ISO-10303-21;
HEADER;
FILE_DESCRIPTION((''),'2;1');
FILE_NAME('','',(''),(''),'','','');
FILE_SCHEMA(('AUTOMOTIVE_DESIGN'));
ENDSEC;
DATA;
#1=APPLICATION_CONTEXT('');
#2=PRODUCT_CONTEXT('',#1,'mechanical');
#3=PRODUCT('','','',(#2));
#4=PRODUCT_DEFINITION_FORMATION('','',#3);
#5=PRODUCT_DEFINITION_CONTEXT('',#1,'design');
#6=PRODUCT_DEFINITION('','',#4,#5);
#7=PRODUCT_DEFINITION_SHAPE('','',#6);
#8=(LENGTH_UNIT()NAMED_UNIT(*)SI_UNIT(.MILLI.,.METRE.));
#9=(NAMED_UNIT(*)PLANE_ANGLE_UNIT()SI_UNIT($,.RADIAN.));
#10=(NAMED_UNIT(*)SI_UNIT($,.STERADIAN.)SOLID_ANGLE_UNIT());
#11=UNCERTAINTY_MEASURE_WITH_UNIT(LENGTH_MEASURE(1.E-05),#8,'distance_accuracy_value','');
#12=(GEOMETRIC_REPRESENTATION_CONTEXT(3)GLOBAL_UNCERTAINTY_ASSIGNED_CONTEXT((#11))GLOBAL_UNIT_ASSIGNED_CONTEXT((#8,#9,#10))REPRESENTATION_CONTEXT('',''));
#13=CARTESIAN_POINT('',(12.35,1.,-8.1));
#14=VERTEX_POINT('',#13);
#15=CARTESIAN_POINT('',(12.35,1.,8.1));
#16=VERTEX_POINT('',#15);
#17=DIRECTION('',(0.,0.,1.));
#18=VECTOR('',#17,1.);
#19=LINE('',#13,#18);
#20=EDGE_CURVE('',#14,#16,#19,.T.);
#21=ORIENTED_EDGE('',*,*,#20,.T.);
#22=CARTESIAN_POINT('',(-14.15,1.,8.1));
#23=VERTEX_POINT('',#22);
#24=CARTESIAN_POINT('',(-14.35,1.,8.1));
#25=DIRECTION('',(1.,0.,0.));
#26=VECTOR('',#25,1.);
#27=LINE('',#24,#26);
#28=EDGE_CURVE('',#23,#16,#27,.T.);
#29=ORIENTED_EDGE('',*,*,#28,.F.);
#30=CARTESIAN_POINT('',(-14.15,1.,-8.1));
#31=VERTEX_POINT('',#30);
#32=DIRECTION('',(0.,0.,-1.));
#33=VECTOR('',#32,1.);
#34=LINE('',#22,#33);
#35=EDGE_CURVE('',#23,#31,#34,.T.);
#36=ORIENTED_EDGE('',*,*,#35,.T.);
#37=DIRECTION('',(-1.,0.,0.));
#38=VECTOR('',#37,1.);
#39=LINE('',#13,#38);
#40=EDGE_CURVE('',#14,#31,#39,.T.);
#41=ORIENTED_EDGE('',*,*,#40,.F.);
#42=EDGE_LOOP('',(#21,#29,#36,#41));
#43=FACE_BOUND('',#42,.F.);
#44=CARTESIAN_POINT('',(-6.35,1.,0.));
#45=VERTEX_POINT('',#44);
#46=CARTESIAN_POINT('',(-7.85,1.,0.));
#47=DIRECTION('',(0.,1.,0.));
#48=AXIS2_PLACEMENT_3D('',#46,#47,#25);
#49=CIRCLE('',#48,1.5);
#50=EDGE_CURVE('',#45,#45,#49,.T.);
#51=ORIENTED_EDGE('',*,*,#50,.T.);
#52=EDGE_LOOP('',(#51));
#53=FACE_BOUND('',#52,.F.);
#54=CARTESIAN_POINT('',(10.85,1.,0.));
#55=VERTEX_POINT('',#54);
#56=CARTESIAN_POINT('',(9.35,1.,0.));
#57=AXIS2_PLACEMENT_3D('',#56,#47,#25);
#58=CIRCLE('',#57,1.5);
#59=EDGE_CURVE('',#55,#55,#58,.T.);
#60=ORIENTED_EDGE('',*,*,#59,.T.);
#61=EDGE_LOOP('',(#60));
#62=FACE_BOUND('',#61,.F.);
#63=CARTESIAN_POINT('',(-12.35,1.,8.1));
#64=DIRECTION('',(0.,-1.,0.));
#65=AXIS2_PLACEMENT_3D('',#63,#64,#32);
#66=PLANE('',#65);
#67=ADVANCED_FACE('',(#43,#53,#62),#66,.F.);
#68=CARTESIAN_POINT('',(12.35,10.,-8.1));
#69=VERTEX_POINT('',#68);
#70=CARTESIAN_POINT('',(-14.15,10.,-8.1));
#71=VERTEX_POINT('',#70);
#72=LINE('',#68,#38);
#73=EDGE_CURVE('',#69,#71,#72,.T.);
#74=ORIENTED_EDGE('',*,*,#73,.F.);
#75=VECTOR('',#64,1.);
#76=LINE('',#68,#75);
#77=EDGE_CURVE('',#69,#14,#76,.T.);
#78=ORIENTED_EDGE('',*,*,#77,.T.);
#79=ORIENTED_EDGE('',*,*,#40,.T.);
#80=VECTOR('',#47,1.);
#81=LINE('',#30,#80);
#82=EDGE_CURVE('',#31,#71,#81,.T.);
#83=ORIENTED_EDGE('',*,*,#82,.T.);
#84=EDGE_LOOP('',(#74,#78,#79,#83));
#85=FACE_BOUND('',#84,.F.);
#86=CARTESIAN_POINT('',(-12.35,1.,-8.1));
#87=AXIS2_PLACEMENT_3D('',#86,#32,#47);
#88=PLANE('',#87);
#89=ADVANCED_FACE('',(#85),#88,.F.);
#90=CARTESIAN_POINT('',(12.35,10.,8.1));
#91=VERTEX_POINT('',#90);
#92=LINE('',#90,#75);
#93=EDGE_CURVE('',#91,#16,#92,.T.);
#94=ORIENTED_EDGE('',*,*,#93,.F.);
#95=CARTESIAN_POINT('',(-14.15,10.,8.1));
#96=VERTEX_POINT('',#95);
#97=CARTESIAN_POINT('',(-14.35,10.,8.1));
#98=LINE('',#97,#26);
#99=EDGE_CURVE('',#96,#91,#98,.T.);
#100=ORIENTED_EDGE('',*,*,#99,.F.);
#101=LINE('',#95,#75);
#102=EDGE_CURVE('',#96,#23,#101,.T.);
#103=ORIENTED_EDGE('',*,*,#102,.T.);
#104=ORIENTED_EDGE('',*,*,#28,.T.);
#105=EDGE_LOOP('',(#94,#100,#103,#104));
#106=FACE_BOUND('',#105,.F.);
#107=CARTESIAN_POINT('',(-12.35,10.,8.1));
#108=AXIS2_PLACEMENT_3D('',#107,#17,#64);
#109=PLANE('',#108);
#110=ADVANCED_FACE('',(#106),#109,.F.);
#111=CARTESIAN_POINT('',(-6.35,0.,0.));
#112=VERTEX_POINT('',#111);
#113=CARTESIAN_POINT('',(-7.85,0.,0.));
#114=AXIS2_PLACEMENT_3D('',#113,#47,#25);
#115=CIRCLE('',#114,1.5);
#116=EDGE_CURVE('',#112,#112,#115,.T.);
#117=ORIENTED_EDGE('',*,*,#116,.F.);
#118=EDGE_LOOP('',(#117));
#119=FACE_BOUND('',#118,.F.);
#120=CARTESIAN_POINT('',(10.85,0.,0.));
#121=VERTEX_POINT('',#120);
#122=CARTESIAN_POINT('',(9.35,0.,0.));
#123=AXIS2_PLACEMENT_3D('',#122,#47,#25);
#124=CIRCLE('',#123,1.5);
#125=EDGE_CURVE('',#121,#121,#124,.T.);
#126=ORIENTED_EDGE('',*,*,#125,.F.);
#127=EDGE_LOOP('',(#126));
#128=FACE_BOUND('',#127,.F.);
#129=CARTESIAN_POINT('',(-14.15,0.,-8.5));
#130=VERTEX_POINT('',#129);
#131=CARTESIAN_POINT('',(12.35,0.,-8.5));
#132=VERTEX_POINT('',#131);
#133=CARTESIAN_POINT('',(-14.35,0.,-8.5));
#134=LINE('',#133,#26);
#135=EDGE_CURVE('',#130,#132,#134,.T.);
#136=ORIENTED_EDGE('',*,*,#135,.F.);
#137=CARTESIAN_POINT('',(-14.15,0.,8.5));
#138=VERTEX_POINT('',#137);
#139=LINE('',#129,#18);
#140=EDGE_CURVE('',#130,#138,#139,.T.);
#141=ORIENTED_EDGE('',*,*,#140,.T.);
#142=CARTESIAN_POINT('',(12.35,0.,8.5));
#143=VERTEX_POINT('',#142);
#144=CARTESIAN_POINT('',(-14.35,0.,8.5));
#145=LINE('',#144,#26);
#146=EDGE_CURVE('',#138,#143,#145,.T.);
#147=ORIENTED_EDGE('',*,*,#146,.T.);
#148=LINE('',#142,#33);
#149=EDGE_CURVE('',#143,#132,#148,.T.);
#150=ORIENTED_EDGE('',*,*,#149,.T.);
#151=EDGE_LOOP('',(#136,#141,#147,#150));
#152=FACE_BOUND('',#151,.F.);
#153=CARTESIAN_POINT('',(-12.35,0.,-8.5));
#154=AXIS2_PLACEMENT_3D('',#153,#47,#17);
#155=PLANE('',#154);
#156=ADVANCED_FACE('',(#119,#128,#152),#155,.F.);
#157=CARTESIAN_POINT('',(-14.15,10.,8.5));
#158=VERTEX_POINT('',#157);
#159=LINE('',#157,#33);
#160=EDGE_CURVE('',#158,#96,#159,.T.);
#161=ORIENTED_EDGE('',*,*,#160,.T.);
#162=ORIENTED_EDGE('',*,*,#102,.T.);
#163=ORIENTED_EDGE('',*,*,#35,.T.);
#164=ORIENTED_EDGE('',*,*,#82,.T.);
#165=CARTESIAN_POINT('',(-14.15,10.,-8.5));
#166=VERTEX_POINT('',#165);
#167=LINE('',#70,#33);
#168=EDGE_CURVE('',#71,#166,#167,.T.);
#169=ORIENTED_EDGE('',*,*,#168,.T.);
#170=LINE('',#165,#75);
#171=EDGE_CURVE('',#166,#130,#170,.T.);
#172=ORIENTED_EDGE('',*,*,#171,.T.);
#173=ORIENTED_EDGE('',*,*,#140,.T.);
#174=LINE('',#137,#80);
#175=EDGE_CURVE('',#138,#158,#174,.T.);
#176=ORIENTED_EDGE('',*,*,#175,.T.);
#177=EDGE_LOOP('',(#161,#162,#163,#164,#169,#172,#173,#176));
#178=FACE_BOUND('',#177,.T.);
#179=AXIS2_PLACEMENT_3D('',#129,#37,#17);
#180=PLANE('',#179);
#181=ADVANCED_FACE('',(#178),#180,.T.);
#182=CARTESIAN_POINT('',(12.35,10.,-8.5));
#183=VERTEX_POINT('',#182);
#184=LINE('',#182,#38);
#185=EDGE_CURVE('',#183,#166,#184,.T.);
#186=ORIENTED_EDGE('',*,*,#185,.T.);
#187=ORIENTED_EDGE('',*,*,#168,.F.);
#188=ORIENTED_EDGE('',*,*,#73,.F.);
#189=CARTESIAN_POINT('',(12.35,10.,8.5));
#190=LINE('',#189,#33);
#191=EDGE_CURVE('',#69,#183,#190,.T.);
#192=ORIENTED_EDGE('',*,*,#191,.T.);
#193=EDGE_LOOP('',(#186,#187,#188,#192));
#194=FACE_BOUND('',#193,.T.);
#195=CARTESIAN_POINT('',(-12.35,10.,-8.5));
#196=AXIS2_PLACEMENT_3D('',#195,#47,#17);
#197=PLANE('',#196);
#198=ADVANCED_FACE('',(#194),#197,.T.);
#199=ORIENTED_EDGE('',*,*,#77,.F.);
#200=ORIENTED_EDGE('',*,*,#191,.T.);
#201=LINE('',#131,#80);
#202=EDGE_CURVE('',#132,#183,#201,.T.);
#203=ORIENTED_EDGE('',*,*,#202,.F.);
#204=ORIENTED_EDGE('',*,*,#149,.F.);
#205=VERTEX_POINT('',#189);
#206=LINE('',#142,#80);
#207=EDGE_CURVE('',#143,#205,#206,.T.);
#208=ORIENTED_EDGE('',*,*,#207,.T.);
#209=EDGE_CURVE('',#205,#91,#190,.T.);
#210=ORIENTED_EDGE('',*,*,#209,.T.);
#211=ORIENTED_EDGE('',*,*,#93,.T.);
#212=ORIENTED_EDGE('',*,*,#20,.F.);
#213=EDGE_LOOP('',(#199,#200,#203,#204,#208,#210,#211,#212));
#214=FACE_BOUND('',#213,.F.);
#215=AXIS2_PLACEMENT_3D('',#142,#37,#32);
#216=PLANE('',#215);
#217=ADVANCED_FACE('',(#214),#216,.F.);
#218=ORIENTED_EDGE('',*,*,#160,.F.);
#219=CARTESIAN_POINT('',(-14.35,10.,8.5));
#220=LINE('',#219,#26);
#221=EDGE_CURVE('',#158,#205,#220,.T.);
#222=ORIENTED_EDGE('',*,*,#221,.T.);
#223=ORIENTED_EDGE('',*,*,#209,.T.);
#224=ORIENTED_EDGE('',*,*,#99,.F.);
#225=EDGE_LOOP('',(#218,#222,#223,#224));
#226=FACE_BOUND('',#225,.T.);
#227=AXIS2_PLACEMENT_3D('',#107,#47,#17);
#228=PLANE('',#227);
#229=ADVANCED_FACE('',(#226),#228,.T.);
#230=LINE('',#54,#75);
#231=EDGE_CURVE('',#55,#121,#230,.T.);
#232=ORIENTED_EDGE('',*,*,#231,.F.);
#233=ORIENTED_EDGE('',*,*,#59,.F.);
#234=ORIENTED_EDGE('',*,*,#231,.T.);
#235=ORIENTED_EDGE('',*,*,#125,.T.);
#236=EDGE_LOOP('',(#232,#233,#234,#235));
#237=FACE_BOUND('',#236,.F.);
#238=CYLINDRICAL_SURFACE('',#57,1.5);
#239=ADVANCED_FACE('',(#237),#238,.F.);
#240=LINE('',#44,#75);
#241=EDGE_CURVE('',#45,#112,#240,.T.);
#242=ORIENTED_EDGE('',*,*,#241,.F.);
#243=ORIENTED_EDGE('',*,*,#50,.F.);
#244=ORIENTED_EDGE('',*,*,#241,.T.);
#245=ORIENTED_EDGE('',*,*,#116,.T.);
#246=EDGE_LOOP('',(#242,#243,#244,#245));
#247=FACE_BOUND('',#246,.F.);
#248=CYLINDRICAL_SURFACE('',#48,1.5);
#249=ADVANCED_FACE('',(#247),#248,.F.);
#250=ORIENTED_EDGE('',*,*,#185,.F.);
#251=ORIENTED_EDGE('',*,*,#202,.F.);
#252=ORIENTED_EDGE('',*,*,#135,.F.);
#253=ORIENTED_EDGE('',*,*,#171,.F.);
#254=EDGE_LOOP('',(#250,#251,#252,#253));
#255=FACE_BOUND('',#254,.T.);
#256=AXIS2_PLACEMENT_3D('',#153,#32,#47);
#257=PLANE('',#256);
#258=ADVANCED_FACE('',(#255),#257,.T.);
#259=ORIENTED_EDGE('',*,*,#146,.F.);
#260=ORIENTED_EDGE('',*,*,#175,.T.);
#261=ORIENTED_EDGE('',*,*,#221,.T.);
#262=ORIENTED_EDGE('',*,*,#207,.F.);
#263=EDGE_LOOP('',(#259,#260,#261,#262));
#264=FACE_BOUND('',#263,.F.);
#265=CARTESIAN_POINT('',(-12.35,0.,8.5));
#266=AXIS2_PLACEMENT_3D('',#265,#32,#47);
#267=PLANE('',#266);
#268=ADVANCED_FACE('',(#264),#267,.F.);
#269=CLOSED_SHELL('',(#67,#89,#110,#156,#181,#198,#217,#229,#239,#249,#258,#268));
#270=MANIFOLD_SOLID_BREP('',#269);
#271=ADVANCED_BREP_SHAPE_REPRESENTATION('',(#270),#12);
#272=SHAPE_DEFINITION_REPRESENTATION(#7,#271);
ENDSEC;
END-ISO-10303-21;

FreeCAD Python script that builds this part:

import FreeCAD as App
import Part
import Sketcher

V = App.Vector

doc = App.newDocument("Part")
body = doc.addObject("PartDesign::Body", "Body")

# Sketch on XZ plane
sketch1 = body.newObject("Sketcher::SketchObject", "Sketch")
sketch1.AttachmentSupport = (doc.getObject("XZ_Plane"), [""])
sketch1.MapMode = "FlatFace"
sketch1.addGeometry([
    Part.LineSegment(V(-12.35, -8.5, 0), V(-12.35, 8.5, 0)),
    Part.LineSegment(V(-12.35, 8.5, 0), V(12.35, 8.5, 0)),
    Part.LineSegment(V(12.35, 8.5, 0), V(12.35, -8.5, 0)),
    Part.LineSegment(V(12.35, -8.5, 0), V(-12.35, -8.5, 0)),
], False)
sketch1.addConstraint([
    Sketcher.Constraint("Coincident", 0, 2, 1, 1),
    Sketcher.Constraint("Coincident", 1, 2, 2, 1),
    Sketcher.Constraint("Coincident", 2, 2, 3, 1),
    Sketcher.Constraint("Coincident", 3, 2, 0, 1),
    Sketcher.Constraint("Vertical", 0),
    Sketcher.Constraint("Horizontal", 1),
    Sketcher.Constraint("Vertical", 2),
    Sketcher.Constraint("Horizontal", 3),
    Sketcher.Constraint("Symmetric", 0, 2, 2, 2, -1, 1),
    Sketcher.Constraint("DistanceY", 0, 1, 0, 2, 17.0),
    Sketcher.Constraint("DistanceX", 1, 1, 1, 2, 24.7),
])
pad1 = body.newObject("PartDesign::Pad", "Pad")
pad1.Profile = sketch1
pad1.Length = 10
pad1.Reversed = True

# Sketch on XZ plane
sketch2 = body.newObject("Sketcher::SketchObject", "Sketch001")
sketch2.AttachmentSupport = (doc.getObject("XZ_Plane"), [""])
sketch2.MapMode = "FlatFace"
sketch2.AttachmentOffset = App.Placement(V(0, 0, -10), App.Rotation())
sketch2.addGeometry([
    Part.LineSegment(V(12.35, -8.1, 0), V(-12.35, -8.1, 0)),
    Part.LineSegment(V(-12.35, -8.1, 0), V(-12.35, 8.1, 0)),
    Part.LineSegment(V(-12.35, 8.1, 0), V(12.35, 8.1, 0)),
    Part.LineSegment(V(12.35, 8.1, 0), V(12.35, -8.1, 0)),
], False)
sketch2.addConstraint([
    Sketcher.Constraint("Coincident", 0, 2, 1, 1),
    Sketcher.Constraint("Coincident", 1, 2, 2, 1),
    Sketcher.Constraint("Coincident", 2, 2, 3, 1),
    Sketcher.Constraint("Coincident", 3, 2, 0, 1),
    Sketcher.Constraint("Horizontal", 0),
    Sketcher.Constraint("Vertical", 1),
    Sketcher.Constraint("Horizontal", 2),
    Sketcher.Constraint("Vertical", 3),
    Sketcher.Constraint("Symmetric", 0, 2, 2, 2, -1, 1),
    Sketcher.Constraint("DistanceX", 0, 2, 0, 1, 24.7),
    Sketcher.Constraint("DistanceY", 1, 1, 1, 2, 16.2),
])
pocket1 = body.newObject("PartDesign::Pocket", "Pocket")
pocket1.Profile = sketch2
pocket1.Length = 9
pocket1.Reversed = True

# Sketch on XZ plane
sketch3 = body.newObject("Sketcher::SketchObject", "Sketch002")
sketch3.AttachmentSupport = (doc.getObject("XZ_Plane"), [""])
sketch3.MapMode = "FlatFace"
sketch3.addGeometry([
    Part.Circle(V(-9.35, 0, 0), V(0, 0, 1), 1.5),
    Part.Circle(V(9.35, 0, 0), V(0, 0, 1), 1.5),
], False)
sketch3.addConstraint([
    Sketcher.Constraint("Equal", 0, 1),
    Sketcher.Constraint("Symmetric", 0, 3, 1, 3, -1, 1),
    Sketcher.Constraint("PointOnObject", 0, 3, -1),
    Sketcher.Constraint("Diameter", 0, 3.0),
    Sketcher.Constraint("DistanceX", 0, 3, 1, 3, 18.7),
])
pocket2 = body.newObject("PartDesign::Pocket", "Pocket001")
pocket2.Profile = sketch3
pocket2.Length = 1

# Sketch on YZ plane
sketch4 = body.newObject("Sketcher::SketchObject", "Sketch003")
sketch4.AttachmentSupport = (doc.getObject("YZ_Plane"), [""])
sketch4.MapMode = "FlatFace"
sketch4.AttachmentOffset = App.Placement(V(0, 0, -12.35), App.Rotation())
sketch4.addGeometry([
    Part.LineSegment(V(1, 8.1, 0), V(1, -8.1, 0)),  # 0
    Part.LineSegment(V(1, -8.1, 0), V(10, -8.1, 0)),  # 1
    Part.LineSegment(V(10, -8.1, 0), V(10, -8.5, 0)),  # 2
    Part.LineSegment(V(10, -8.5, 0), V(0, -8.5, 0)),  # 3
    Part.LineSegment(V(0, -8.5, 0), V(0, 8.5, 0)),  # 4
    Part.LineSegment(V(0, 8.5, 0), V(10, 8.5, 0)),  # 5
    Part.LineSegment(V(10, 8.5, 0), V(10, 8.1, 0)),  # 6
    Part.LineSegment(V(10, 8.1, 0), V(1, 8.1, 0)),  # 7
], False)
sketch4.addConstraint([
    Sketcher.Constraint("Coincident", 0, 2, 1, 1),
    Sketcher.Constraint("Coincident", 1, 2, 2, 1),
    Sketcher.Constraint("Coincident", 2, 2, 3, 1),
    Sketcher.Constraint("Coincident", 3, 2, 4, 1),
    Sketcher.Constraint("Coincident", 4, 2, 5, 1),
    Sketcher.Constraint("Coincident", 5, 2, 6, 1),
    Sketcher.Constraint("Coincident", 6, 2, 7, 1),
    Sketcher.Constraint("Coincident", 7, 2, 0, 1),
    Sketcher.Constraint("Vertical", 0),
    Sketcher.Constraint("Horizontal", 1),
    Sketcher.Constraint("Vertical", 2),
    Sketcher.Constraint("Horizontal", 3),
    Sketcher.Constraint("Vertical", 4),
    Sketcher.Constraint("Horizontal", 5),
    Sketcher.Constraint("Vertical", 6),
    Sketcher.Constraint("Horizontal", 7),
    Sketcher.Constraint("Symmetric", 3, 2, 4, 2, -1, 1),
    Sketcher.Constraint("Symmetric", 1, 2, 6, 2, -1),
    Sketcher.Constraint("DistanceX", 1, 1, 1, 2, 9.0),
    Sketcher.Constraint("DistanceX", 3, 2, 3, 1, 10.0),
    Sketcher.Constraint("DistanceY", 4, 1, 4, 2, 17.0),
    Sketcher.Constraint("DistanceY", 0, 2, 0, 1, 16.2),
])
pad2 = body.newObject("PartDesign::Pad", "Pad001")
pad2.Profile = sketch4
pad2.Length = 2
pad2.Reversed = True

# Sketch on YZ plane
sketch5 = body.newObject("Sketcher::SketchObject", "Sketch004")
sketch5.AttachmentSupport = (doc.getObject("YZ_Plane"), [""])
sketch5.MapMode = "FlatFace"
sketch5.AttachmentOffset = App.Placement(V(0, 0, -14.35), App.Rotation())
sketch5.addGeometry([
    Part.LineSegment(V(1, 8.1, 0), V(1, -8.1, 0)),  # 0
    Part.LineSegment(V(1, -8.1, 0), V(10, -8.1, 0)),  # 1
    Part.LineSegment(V(10, -8.1, 0), V(10, -8.5, 0)),  # 2
    Part.LineSegment(V(10, -8.5, 0), V(0, -8.5, 0)),  # 3
    Part.LineSegment(V(0, -8.5, 0), V(0, 8.5, 0)),  # 4
    Part.LineSegment(V(0, 8.5, 0), V(10, 8.5, 0)),  # 5
    Part.LineSegment(V(10, 8.5, 0), V(10, 8.1, 0)),  # 6
    Part.LineSegment(V(10, 8.1, 0), V(1, 8.1, 0)),  # 7
], False)
sketch5.addConstraint([
    Sketcher.Constraint("Coincident", 0, 2, 1, 1),
    Sketcher.Constraint("Coincident", 1, 2, 2, 1),
    Sketcher.Constraint("Coincident", 2, 2, 3, 1),
    Sketcher.Constraint("Coincident", 3, 2, 4, 1),
    Sketcher.Constraint("Coincident", 4, 2, 5, 1),
    Sketcher.Constraint("Coincident", 5, 2, 6, 1),
    Sketcher.Constraint("Coincident", 6, 2, 7, 1),
    Sketcher.Constraint("Coincident", 7, 2, 0, 1),
    Sketcher.Constraint("Vertical", 0),
    Sketcher.Constraint("Horizontal", 1),
    Sketcher.Constraint("Vertical", 2),
    Sketcher.Constraint("Horizontal", 3),
    Sketcher.Constraint("Vertical", 4),
    Sketcher.Constraint("Horizontal", 5),
    Sketcher.Constraint("Vertical", 6),
    Sketcher.Constraint("Horizontal", 7),
    Sketcher.Constraint("Symmetric", 3, 2, 4, 2, -1, 1),
    Sketcher.Constraint("Symmetric", 1, 2, 6, 2, -1),
    Sketcher.Constraint("DistanceX", 1, 1, 1, 2, 9.0),
    Sketcher.Constraint("DistanceX", 3, 2, 3, 1, 10.0),
    Sketcher.Constraint("DistanceY", 4, 1, 4, 2, 17.0),
    Sketcher.Constraint("DistanceY", 0, 2, 0, 1, 16.2),
])
pocket3 = body.newObject("PartDesign::Pocket", "Pocket002")
pocket3.Profile = sketch5
pocket3.Length = 0.2
pocket3.Reversed = True

# Sketch on XZ plane
sketch6 = body.newObject("Sketcher::SketchObject", "Sketch005")
sketch6.AttachmentSupport = (doc.getObject("XZ_Plane"), [""])
sketch6.MapMode = "FlatFace"
sketch6.addGeometry(Part.Circle(V(-9.35, 0, 0), V(0, 0, 1), 1.5), False)
sketch6.addConstraint([
    Sketcher.Constraint("PointOnObject", 0, 3, -1),
    Sketcher.Constraint("Diameter", 0, 3.0),
    Sketcher.Constraint("DistanceX", 0, 3, -1, 1, 9.35),
])
pad3 = body.newObject("PartDesign::Pad", "Pad002")
pad3.Profile = sketch6
pad3.Length = 1
pad3.Reversed = True

# Sketch on XZ plane
sketch7 = body.newObject("Sketcher::SketchObject", "Sketch006")
sketch7.AttachmentSupport = (doc.getObject("XZ_Plane"), [""])
sketch7.MapMode = "FlatFace"
sketch7.addGeometry(Part.Circle(V(-7.85, 0, 0), V(0, 0, 1), 1.5), False)
sketch7.addConstraint([
    Sketcher.Constraint("PointOnObject", 0, 3, -1),
    Sketcher.Constraint("Diameter", 0, 3.0),
    Sketcher.Constraint("DistanceX", 0, 3, -1, 1, 7.85),
])
pocket4 = body.newObject("PartDesign::Pocket", "Pocket003")
pocket4.Profile = sketch7
pocket4.Length = 1

# Sketch on XZ plane
sketch8 = body.newObject("Sketcher::SketchObject", "Sketch007")
sketch8.AttachmentSupport = (doc.getObject("XZ_Plane"), [""])
sketch8.MapMode = "FlatFace"
sketch8.AttachmentOffset = App.Placement(V(0, 0, -1), App.Rotation())
sketch8.addGeometry([
    Part.Circle(V(-7.85, 0, 0), V(0, 0, 1), 1.5),
    Part.Circle(V(-7.85, 0, 0), V(0, 0, 1), 0.05),
    Part.Circle(V(9.35, 0, 0), V(0, 0, 1), 1.5),
    Part.Circle(V(9.35, 0, 0), V(0, 0, 1), 0.05),
], False)
sketch8.addConstraint([
    Sketcher.Constraint("Coincident", 1, 3, 0, 3),
    Sketcher.Constraint("Coincident", 3, 3, 2, 3),
    Sketcher.Constraint("Equal", 0, 2),
    Sketcher.Constraint("Equal", 1, 3),
    Sketcher.Constraint("PointOnObject", 0, 3, -1),
    Sketcher.Constraint("PointOnObject", 2, 3, -1),
    Sketcher.Constraint("Diameter", 1, 0.1),
    Sketcher.Constraint("Diameter", 0, 3.0),
    Sketcher.Constraint("DistanceX", 0, 3, 2, 3, 17.2),
    Sketcher.Constraint("DistanceX", 0, 3, -1, 1, 7.85),
])
pad4 = body.newObject("PartDesign::Pad", "Pad003")
pad4.Profile = sketch8
pad4.Length = 1

# Sketch on XZ plane
sketch9 = body.newObject("Sketcher::SketchObject", "Sketch008")
sketch9.AttachmentSupport = (doc.getObject("XZ_Plane"), [""])
sketch9.MapMode = "FlatFace"
sketch9.AttachmentOffset = App.Placement(V(0, 0, -1), App.Rotation())
sketch9.addGeometry([
    Part.Circle(V(-7.85, 0, 0), V(0, 0, 1), 1.5),
    Part.Circle(V(-7.85, 0, 0), V(0, 0, 1), 0.05),
    Part.Circle(V(9.35, 0, 0), V(0, 0, 1), 1.5),
    Part.Circle(V(9.35, 0, 0), V(0, 0, 1), 0.05),
], False)
sketch9.addConstraint([
    Sketcher.Constraint("Coincident", 1, 3, 0, 3),
    Sketcher.Constraint("Coincident", 3, 3, 2, 3),
    Sketcher.Constraint("Equal", 0, 2),
    Sketcher.Constraint("Equal", 1, 3),
    Sketcher.Constraint("PointOnObject", 0, 3, -1),
    Sketcher.Constraint("PointOnObject", 2, 3, -1),
    Sketcher.Constraint("Diameter", 0, 3.0),
    Sketcher.Constraint("Diameter", 1, 0.1),
    Sketcher.Constraint("DistanceX", 0, 3, 2, 3, 17.2),
    Sketcher.Constraint("DistanceX", 0, 3, -1, 1, 7.85),
])
pocket5 = body.newObject("PartDesign::Pocket", "Pocket004")
pocket5.Profile = sketch9
pocket5.Length = 1
pocket5.Reversed = True

doc.recompute()
